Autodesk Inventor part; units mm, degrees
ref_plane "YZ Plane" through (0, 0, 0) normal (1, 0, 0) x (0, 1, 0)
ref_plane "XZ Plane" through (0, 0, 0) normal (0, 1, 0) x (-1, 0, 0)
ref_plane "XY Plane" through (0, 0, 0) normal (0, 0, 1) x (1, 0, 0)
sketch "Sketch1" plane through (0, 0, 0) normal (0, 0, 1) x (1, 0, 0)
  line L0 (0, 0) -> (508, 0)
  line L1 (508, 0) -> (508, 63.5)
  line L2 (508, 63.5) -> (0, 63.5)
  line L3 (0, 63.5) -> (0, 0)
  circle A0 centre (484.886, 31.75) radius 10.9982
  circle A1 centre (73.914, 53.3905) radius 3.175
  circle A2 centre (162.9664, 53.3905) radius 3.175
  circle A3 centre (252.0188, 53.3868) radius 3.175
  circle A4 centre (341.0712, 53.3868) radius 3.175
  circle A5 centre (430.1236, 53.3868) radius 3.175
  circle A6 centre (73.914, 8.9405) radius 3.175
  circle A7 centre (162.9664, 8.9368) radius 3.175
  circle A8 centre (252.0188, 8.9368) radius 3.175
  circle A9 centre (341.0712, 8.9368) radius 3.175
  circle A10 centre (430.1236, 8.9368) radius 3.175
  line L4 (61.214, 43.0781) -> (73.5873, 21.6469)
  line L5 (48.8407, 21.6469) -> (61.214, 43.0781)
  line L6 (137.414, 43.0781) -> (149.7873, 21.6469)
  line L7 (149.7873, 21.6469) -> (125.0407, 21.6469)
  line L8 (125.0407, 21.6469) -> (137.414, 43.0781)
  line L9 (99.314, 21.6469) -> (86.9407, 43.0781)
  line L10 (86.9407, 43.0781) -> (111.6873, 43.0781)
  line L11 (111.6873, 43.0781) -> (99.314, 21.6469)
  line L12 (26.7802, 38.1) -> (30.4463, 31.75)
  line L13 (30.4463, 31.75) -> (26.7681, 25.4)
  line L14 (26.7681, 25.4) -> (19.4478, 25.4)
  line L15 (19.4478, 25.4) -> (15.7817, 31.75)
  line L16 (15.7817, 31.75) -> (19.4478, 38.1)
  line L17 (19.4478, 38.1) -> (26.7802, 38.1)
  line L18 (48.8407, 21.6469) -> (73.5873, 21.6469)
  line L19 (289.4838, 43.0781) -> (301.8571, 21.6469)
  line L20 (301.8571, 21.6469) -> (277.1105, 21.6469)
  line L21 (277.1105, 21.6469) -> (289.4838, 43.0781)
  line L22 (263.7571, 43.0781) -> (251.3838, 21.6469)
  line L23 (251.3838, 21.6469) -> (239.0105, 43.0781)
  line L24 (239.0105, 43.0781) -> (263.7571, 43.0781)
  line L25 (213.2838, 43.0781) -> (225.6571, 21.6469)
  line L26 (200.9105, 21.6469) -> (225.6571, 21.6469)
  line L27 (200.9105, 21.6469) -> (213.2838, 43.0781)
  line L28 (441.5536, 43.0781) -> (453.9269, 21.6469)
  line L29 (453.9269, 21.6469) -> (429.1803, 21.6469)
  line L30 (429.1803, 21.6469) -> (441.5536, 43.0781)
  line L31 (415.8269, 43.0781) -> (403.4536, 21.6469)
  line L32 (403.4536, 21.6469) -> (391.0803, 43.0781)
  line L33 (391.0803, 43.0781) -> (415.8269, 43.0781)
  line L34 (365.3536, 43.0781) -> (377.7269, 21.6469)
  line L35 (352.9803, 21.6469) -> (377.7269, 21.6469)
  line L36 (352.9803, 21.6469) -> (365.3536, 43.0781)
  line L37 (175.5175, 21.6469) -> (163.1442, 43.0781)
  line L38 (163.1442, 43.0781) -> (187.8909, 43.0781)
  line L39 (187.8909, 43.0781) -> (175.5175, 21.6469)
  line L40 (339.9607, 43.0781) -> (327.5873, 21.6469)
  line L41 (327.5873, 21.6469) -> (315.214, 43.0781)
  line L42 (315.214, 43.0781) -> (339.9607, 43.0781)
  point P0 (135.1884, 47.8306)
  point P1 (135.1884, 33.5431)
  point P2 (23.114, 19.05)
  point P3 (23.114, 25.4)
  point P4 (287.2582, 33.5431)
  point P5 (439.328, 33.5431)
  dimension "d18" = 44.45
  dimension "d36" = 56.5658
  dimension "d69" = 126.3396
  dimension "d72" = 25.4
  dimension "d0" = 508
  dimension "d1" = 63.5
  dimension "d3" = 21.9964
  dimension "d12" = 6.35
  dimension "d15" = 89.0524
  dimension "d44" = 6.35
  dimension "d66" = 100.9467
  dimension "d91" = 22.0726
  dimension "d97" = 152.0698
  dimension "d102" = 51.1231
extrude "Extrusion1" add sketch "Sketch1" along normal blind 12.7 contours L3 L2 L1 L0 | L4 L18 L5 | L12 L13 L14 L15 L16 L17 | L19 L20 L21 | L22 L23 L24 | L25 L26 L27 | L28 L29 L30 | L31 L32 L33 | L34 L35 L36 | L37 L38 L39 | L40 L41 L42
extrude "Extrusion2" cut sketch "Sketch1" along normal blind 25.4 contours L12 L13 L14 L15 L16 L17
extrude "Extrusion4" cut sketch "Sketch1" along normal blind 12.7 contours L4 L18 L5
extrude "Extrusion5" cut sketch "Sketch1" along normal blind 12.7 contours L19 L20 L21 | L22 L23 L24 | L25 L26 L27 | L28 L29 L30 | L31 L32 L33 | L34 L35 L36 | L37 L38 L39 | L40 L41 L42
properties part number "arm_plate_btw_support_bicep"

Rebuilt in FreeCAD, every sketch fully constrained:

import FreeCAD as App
import Part
import Sketcher
from FreeCAD import Vector
Q = App.Units.Quantity

doc = App.newDocument("Part")
params = doc.addObject("Spreadsheet::Sheet", "Params")
for row, (alias, value) in enumerate([
    ("sketch1_diameter", "0.25 in"),
    ("sketch1_width", "20 in"),
    ("sketch1_diameter2", "0.866 in"),
    ("sketch1_height", "2.5 in"),
    ("pad1_length", "0.5 in"),
    ("pocket1_length", "1 in"),
    ("pocket2_length", "0.5 in"),
    ("pocket3_length", "0.5 in"),
], start=1):
    params.set(f"A{row}", alias)
    params.set(f"B{row}", "=" + value)
    params.setAlias(f"B{row}", alias)

body = doc.addObject("PartDesign::Body", "Body")

# Sketch on XY plane
sketch1 = doc.addObject("Sketcher::SketchObject", "Sketch")
body.addObject(sketch1)
sketch1.AttachmentSupport = (doc.XY_Plane, [""])
sketch1.MapMode = "FlatFace"
sketch1.addGeometry([
    Part.LineSegment(Vector(0, 63.5, 0), Vector(0, 0, 0)),  # 0
    Part.LineSegment(Vector(0, 0, 0), Vector(508, 0, 0)),  # 1
    Part.LineSegment(Vector(508, 0, 0), Vector(508, 63.5, 0)),  # 2
    Part.LineSegment(Vector(508, 63.5, 0), Vector(0, 63.5, 0)),  # 3
    Part.Circle(Vector(73.9, 8.9, 0), Vector(0, 0, 1), 3.2),  # 4
    Part.Circle(Vector(163, 8.9, 0), Vector(0, 0, 1), 3.2),  # 5
    Part.Circle(Vector(252, 8.9, 0), Vector(0, 0, 1), 3.2),  # 6
    Part.Circle(Vector(341.1, 8.9, 0), Vector(0, 0, 1), 3.2),  # 7
    Part.Circle(Vector(430.1, 8.9, 0), Vector(0, 0, 1), 3.2),  # 8
    Part.LineSegment(Vector(111.7, 43.1, 0), Vector(99.3, 21.6, 0)),  # 9
    Part.LineSegment(Vector(99.3, 21.6, 0), Vector(86.9, 43.1, 0)),  # 10
    Part.LineSegment(Vector(86.9, 43.1, 0), Vector(111.7, 43.1, 0)),  # 11
    Part.LineSegment(Vector(125, 21.6, 0), Vector(137.4, 43.1, 0)),  # 12
    Part.LineSegment(Vector(137.4, 43.1, 0), Vector(149.8, 21.6, 0)),  # 13
    Part.LineSegment(Vector(149.8, 21.6, 0), Vector(125, 21.6, 0)),  # 14
    Part.Circle(Vector(73.9, 53.4, 0), Vector(0, 0, 1), 3.2),  # 15
    Part.Circle(Vector(163, 53.4, 0), Vector(0, 0, 1), 3.2),  # 16
    Part.Circle(Vector(252, 53.4, 0), Vector(0, 0, 1), 3.2),  # 17
    Part.Circle(Vector(484.9, 31.8, 0), Vector(0, 0, 1), 11),  # 18
    Part.Circle(Vector(341.1, 53.4, 0), Vector(0, 0, 1), 3.2),  # 19
    Part.Circle(Vector(430.1, 53.4, 0), Vector(0, 0, 1), 3.2),  # 20
], False)
sketch1.addConstraint([
    Sketcher.Constraint("Coincident", 0, 2, 1, 1),
    Sketcher.Constraint("Coincident", 1, 2, 2, 1),
    Sketcher.Constraint("Coincident", 2, 2, 3, 1),
    Sketcher.Constraint("Coincident", 3, 2, 0, 1),
    Sketcher.Constraint("Coincident", 9, 2, 10, 1),
    Sketcher.Constraint("Coincident", 10, 2, 11, 1),
    Sketcher.Constraint("Coincident", 11, 2, 9, 1),
    Sketcher.Constraint("Coincident", 12, 2, 13, 1),
    Sketcher.Constraint("Coincident", 13, 2, 14, 1),
    Sketcher.Constraint("Coincident", 14, 2, 12, 1),
    Sketcher.Constraint("Vertical", 0),
    Sketcher.Constraint("Horizontal", 1),
    Sketcher.Constraint("Vertical", 2),
    Sketcher.Constraint("Horizontal", 3),
    Sketcher.Constraint("Horizontal", 11),
    Sketcher.Constraint("Horizontal", 14),
    Sketcher.Constraint("Coincident", 0, 2, -1, 1),
    Sketcher.Constraint("Equal", 4, 5),
    Sketcher.Constraint("Equal", 5, 6),
    Sketcher.Constraint("Equal", 6, 7),
    Sketcher.Constraint("Equal", 7, 8),
    Sketcher.Constraint("Equal", 8, 15),
    Sketcher.Constraint("Equal", 15, 16),
    Sketcher.Constraint("Equal", 16, 17),
    Sketcher.Constraint("Equal", 17, 19),
    Sketcher.Constraint("Equal", 19, 20),
    Sketcher.Constraint("Parallel", 9, 12),
    Sketcher.Constraint("Parallel", 10, 13),
    Sketcher.Constraint("Horizontal", 5, 3, 6, 3),
    Sketcher.Constraint("Horizontal", 6, 3, 7, 3),
    Sketcher.Constraint("Horizontal", 7, 3, 8, 3),
    Sketcher.Constraint("Horizontal", 15, 3, 16, 3),
    Sketcher.Constraint("Horizontal", 17, 3, 19, 3),
    Sketcher.Constraint("Horizontal", 19, 3, 20, 3),
    Sketcher.Constraint("Horizontal", 11, 2, 12, 2),
    Sketcher.Constraint("Horizontal", 9, 2, 13, 2),
    Sketcher.Constraint("Vertical", 4, 3, 15, 3),
    Sketcher.Constraint("Vertical", 5, 3, 16, 3),
    Sketcher.Constraint("Vertical", 6, 3, 17, 3),
    Sketcher.Constraint("Vertical", 7, 3, 19, 3),
    Sketcher.Constraint("Vertical", 8, 3, 20, 3),
    Sketcher.Constraint("Equal", 9, 10),
    Sketcher.Constraint("Diameter", 4, Q("0.25 in")),
    Sketcher.Constraint("DistanceX", 1, 1, 1, 2, Q("20 in")),
    Sketcher.Constraint("Diameter", 18, Q("0.866 in")),
    Sketcher.Constraint("DistanceY", 0, 2, 0, 1, Q("2.5 in")),
    Sketcher.Constraint("DistanceX", 4, 3, 9, 2, Q("1 in")),
    Sketcher.Constraint("DistanceY", 4, 3, 15, 3, Q("1.75 in")),
    Sketcher.Constraint("DistanceY", 6, 3, 17, 3, Q("1.75 in")),
    Sketcher.Constraint("Angle", 9, Q("-120 deg")),
    Sketcher.Constraint("DistanceX", 4, 3, 5, 3, Q("3.506 in")),
    Sketcher.Constraint("DistanceX", 5, 3, 6, 3, Q("3.506 in")),
    Sketcher.Constraint("DistanceX", 6, 3, 7, 3, Q("3.506 in")),
    Sketcher.Constraint("DistanceX", 7, 3, 8, 3, Q("3.506 in")),
    Sketcher.Constraint("DistanceX", 9, 2, 12, 2, Q("1.5 in")),
    Sketcher.Constraint("DistanceX", -1, 1, 4, 3, Q("2.91 in")),
    Sketcher.Constraint("DistanceX", -1, 1, 18, 3, Q("19.09 in")),
    Sketcher.Constraint("DistanceY", -1, 1, 18, 3, Q("1.25 in")),
    Sketcher.Constraint("DistanceY", -1, 1, 4, 3, Q("0.352 in")),
    Sketcher.Constraint("DistanceY", -1, 1, 10, 2, Q("1.696 in")),
    Sketcher.Constraint("DistanceY", 9, 2, 10, 2, Q("0.843748 in")),
    Sketcher.Constraint("DistanceY", 5, 3, 9, 2, Q("0.5004 in")),
])
sketch1.setExpression("Constraints[42]", "Params.sketch1_diameter")
sketch1.setExpression("Constraints[43]", "Params.sketch1_width")
sketch1.setExpression("Constraints[44]", "Params.sketch1_diameter2")
sketch1.setExpression("Constraints[45]", "Params.sketch1_height")
pad1 = doc.addObject("PartDesign::Pad", "Pad")
body.addObject(pad1)
pad1.Profile = sketch1
pad1.setExpression("Length", "Params.pad1_length")

# Sketch on XY plane
sketch2 = doc.addObject("Sketcher::SketchObject", "Sketch001")
body.addObject(sketch2)
sketch2.AttachmentSupport = (doc.XY_Plane, [""])
sketch2.MapMode = "FlatFace"
sketch2.addGeometry([
    Part.LineSegment(Vector(30, 32, 0), Vector(27, 38, 0)),  # 0
    Part.LineSegment(Vector(27, 38, 0), Vector(19, 38, 0)),  # 1
    Part.LineSegment(Vector(19, 38, 0), Vector(16, 32, 0)),  # 2
    Part.LineSegment(Vector(16, 32, 0), Vector(19, 25, 0)),  # 3
    Part.LineSegment(Vector(19, 25, 0), Vector(27, 25, 0)),  # 4
    Part.LineSegment(Vector(27, 25, 0), Vector(30, 32, 0)),  # 5
], False)
sketch2.addConstraint([
    Sketcher.Constraint("Coincident", 0, 2, 1, 1),
    Sketcher.Constraint("Coincident", 1, 2, 2, 1),
    Sketcher.Constraint("Coincident", 2, 2, 3, 1),
    Sketcher.Constraint("Coincident", 3, 2, 4, 1),
    Sketcher.Constraint("Coincident", 4, 2, 5, 1),
    Sketcher.Constraint("Coincident", 5, 2, 0, 1),
    Sketcher.Constraint("Horizontal", 1),
    Sketcher.Constraint("Horizontal", 4),
    Sketcher.Constraint("Parallel", 0, 3),
    Sketcher.Constraint("Horizontal", 2, 2, 5, 2),
    Sketcher.Constraint("Vertical", 1, 2, 3, 2),
    Sketcher.Constraint("Equal", 0, 2),
    Sketcher.Constraint("DistanceY", -1, 1, 3, 2, Q("1 in")),
    Sketcher.Constraint("DistanceY", 2, 2, 1, 2, Q("0.25 in")),
    Sketcher.Constraint("Angle", 0, Q("119.9995 deg")),
    Sketcher.Constraint("DistanceX", 4, 1, 4, 2, Q("0.2882 in")),
    Sketcher.Constraint("DistanceX", 2, 2, 0, 2, Q("0.433 in")),
    Sketcher.Constraint("DistanceX", -1, 1, 0, 2, Q("26.7802 mm")),
])
pocket1 = doc.addObject("PartDesign::Pocket", "Pocket")
body.addObject(pocket1)
pocket1.Profile = sketch2
pocket1.setExpression("Length", "Params.pocket1_length")
pocket1.Reversed = True

# Sketch on XY plane
sketch3 = doc.addObject("Sketcher::SketchObject", "Sketch002")
body.addObject(sketch3)
sketch3.AttachmentSupport = (doc.XY_Plane, [""])
sketch3.MapMode = "FlatFace"
sketch3.addGeometry([
    Part.LineSegment(Vector(74, 22, 0), Vector(61, 43, 0)),
    Part.LineSegment(Vector(61, 43, 0), Vector(49, 22, 0)),
    Part.LineSegment(Vector(49, 22, 0), Vector(74, 22, 0)),
], False)
sketch3.addConstraint([
    Sketcher.Constraint("Coincident", 0, 2, 1, 1),
    Sketcher.Constraint("Coincident", 1, 2, 2, 1),
    Sketcher.Constraint("Coincident", 2, 2, 0, 1),
    Sketcher.Constraint("Horizontal", 2),
    Sketcher.Constraint("Equal", 0, 1),
    Sketcher.Constraint("Angle", 0, Q("120 deg")),
    Sketcher.Constraint("DistanceX", -1, 1, 0, 2, Q("2.41 in")),
    Sketcher.Constraint("DistanceY", -1, 1, 0, 2, Q("1.696 in")),
    Sketcher.Constraint("DistanceY", 1, 2, 0, 2, Q("0.843748 in")),
])
pocket2 = doc.addObject("PartDesign::Pocket", "Pocket001")
body.addObject(pocket2)
pocket2.Profile = sketch3
pocket2.setExpression("Length", "Params.pocket2_length")
pocket2.Reversed = True

# Sketch on XY plane
sketch4 = doc.addObject("Sketcher::SketchObject", "Sketch003")
body.addObject(sketch4)
sketch4.AttachmentSupport = (doc.XY_Plane, [""])
sketch4.MapMode = "FlatFace"
sketch4.addGeometry([
    Part.LineSegment(Vector(302, 22, 0), Vector(289, 43, 0)),  # 0
    Part.LineSegment(Vector(289, 43, 0), Vector(277, 22, 0)),  # 1
    Part.LineSegment(Vector(277, 22, 0), Vector(302, 22, 0)),  # 2
    Part.LineSegment(Vector(251, 22, 0), Vector(264, 43, 0)),  # 3
    Part.LineSegment(Vector(264, 43, 0), Vector(239, 43, 0)),  # 4
    Part.LineSegment(Vector(239, 43, 0), Vector(251, 22, 0)),  # 5
    Part.LineSegment(Vector(226, 22, 0), Vector(213, 43, 0)),  # 6
    Part.LineSegment(Vector(213, 43, 0), Vector(201, 22, 0)),  # 7
    Part.LineSegment(Vector(201, 22, 0), Vector(226, 22, 0)),  # 8
    Part.LineSegment(Vector(454, 22, 0), Vector(442, 43, 0)),  # 9
    Part.LineSegment(Vector(442, 43, 0), Vector(429, 22, 0)),  # 10
    Part.LineSegment(Vector(429, 22, 0), Vector(454, 22, 0)),  # 11
    Part.LineSegment(Vector(403, 22, 0), Vector(416, 43, 0)),  # 12
    Part.LineSegment(Vector(416, 43, 0), Vector(391, 43, 0)),  # 13
    Part.LineSegment(Vector(391, 43, 0), Vector(403, 22, 0)),  # 14
    Part.LineSegment(Vector(378, 22, 0), Vector(365, 43, 0)),  # 15
    Part.LineSegment(Vector(365, 43, 0), Vector(353, 22, 0)),  # 16
    Part.LineSegment(Vector(353, 22, 0), Vector(378, 22, 0)),  # 17
    Part.LineSegment(Vector(163, 43, 0), Vector(176, 22, 0)),  # 18
    Part.LineSegment(Vector(176, 22, 0), Vector(188, 43, 0)),  # 19
    Part.LineSegment(Vector(188, 43, 0), Vector(163, 43, 0)),  # 20
    Part.LineSegment(Vector(328, 22, 0), Vector(340, 43, 0)),  # 21
    Part.LineSegment(Vector(340, 43, 0), Vector(315, 43, 0)),  # 22
    Part.LineSegment(Vector(315, 43, 0), Vector(328, 22, 0)),  # 23
], False)
sketch4.addConstraint([
    Sketcher.Constraint("Coincident", 0, 2, 1, 1),
    Sketcher.Constraint("Coincident", 1, 2, 2, 1),
    Sketcher.Constraint("Coincident", 2, 2, 0, 1),
    Sketcher.Constraint("Coincident", 3, 2, 4, 1),
    Sketcher.Constraint("Coincident", 4, 2, 5, 1),
    Sketcher.Constraint("Coincident", 5, 2, 3, 1),
    Sketcher.Constraint("Coincident", 6, 2, 7, 1),
    Sketcher.Constraint("Coincident", 7, 2, 8, 1),
    Sketcher.Constraint("Coincident", 8, 2, 6, 1),
    Sketcher.Constraint("Coincident", 9, 2, 10, 1),
    Sketcher.Constraint("Coincident", 10, 2, 11, 1),
    Sketcher.Constraint("Coincident", 11, 2, 9, 1),
    Sketcher.Constraint("Coincident", 12, 2, 13, 1),
    Sketcher.Constraint("Coincident", 13, 2, 14, 1),
    Sketcher.Constraint("Coincident", 14, 2, 12, 1),
    Sketcher.Constraint("Coincident", 15, 2, 16, 1),
    Sketcher.Constraint("Coincident", 16, 2, 17, 1),
    Sketcher.Constraint("Coincident", 17, 2, 15, 1),
    Sketcher.Constraint("Coincident", 18, 2, 19, 1),
    Sketcher.Constraint("Coincident", 19, 2, 20, 1),
    Sketcher.Constraint("Coincident", 20, 2, 18, 1),
    Sketcher.Constraint("Coincident", 21, 2, 22, 1),
    Sketcher.Constraint("Coincident", 22, 2, 23, 1),
    Sketcher.Constraint("Coincident", 23, 2, 21, 1),
    Sketcher.Constraint("Horizontal", 2),
    Sketcher.Constraint("Horizontal", 4),
    Sketcher.Constraint("Horizontal", 8),
    Sketcher.Constraint("Horizontal", 11),
    Sketcher.Constraint("Horizontal", 13),
    Sketcher.Constraint("Horizontal", 17),
    Sketcher.Constraint("Horizontal", 20),
    Sketcher.Constraint("Horizontal", 22),
    Sketcher.Constraint("Parallel", 1, 3),
    Sketcher.Constraint("Parallel", 0, 5),
    Sketcher.Constraint("Parallel", 5, 6),
    Sketcher.Constraint("Parallel", 3, 7),
    Sketcher.Constraint("Parallel", 6, 9),
    Sketcher.Constraint("Parallel", 7, 10),
    Sketcher.Constraint("Parallel", 10, 12),
    Sketcher.Constraint("Parallel", 9, 14),
    Sketcher.Constraint("Parallel", 14, 15),
    Sketcher.Constraint("Parallel", 12, 16),
    Sketcher.Constraint("Parallel", 15, 18),
    Sketcher.Constraint("Parallel", 16, 19),
    Sketcher.Constraint("Parallel", 19, 21),
    Sketcher.Constraint("Parallel", 18, 23),
    Sketcher.Constraint("Horizontal", 0, 2, 3, 2),
    Sketcher.Constraint("Horizontal", 2, 2, 5, 2),
    Sketcher.Constraint("Horizontal", 4, 2, 6, 2),
    Sketcher.Constraint("Horizontal", 5, 2, 7, 2),
    Sketcher.Constraint("Horizontal", 6, 2, 9, 2),
    Sketcher.Constraint("Horizontal", 8, 2, 10, 2),
    Sketcher.Constraint("Horizontal", 9, 2, 12, 2),
    Sketcher.Constraint("Horizontal", 11, 2, 14, 2),
    Sketcher.Constraint("Horizontal", 13, 2, 15, 2),
    Sketcher.Constraint("Horizontal", 14, 2, 16, 2),
    Sketcher.Constraint("Horizontal", 17, 2, 18, 2),
    Sketcher.Constraint("Horizontal", 15, 2, 19, 2),
    Sketcher.Constraint("Horizontal", 20, 2, 21, 2),
    Sketcher.Constraint("Horizontal", 18, 2, 23, 2),
    Sketcher.Constraint("Equal", 0, 1),
    Sketcher.Constraint("Angle", 0, Q("120 deg")),
    Sketcher.Constraint("DistanceX", 6, 2, 0, 2, Q("3 in")),
    Sketcher.Constraint("DistanceX", 0, 2, 9, 2, Q("5.987 in")),
    Sketcher.Constraint("DistanceX", 3, 2, 2, 2, Q("1.5 in")),
    Sketcher.Constraint("DistanceX", 12, 2, 11, 2, Q("1.5 in")),
    Sketcher.Constraint("DistanceX", 15, 2, 14, 2, Q("1.5 in")),
    Sketcher.Constraint("DistanceX", -1, 1, 22, 2, Q("12.41 in")),
    Sketcher.Constraint("DistanceX", 2, 2, 16, 2, Q("51.1232 mm")),
    Sketcher.Constraint("DistanceX", -1, 1, 0, 2, Q("11.397 in")),
    Sketcher.Constraint("DistanceY", -1, 1, 0, 2, Q("1.696 in")),
    Sketcher.Constraint("DistanceX", -1, 1, 20, 2, Q("6.423 in")),
])
pocket3 = doc.addObject("PartDesign::Pocket", "Pocket002")
body.addObject(pocket3)
pocket3.Profile = sketch4
pocket3.setExpression("Length", "Params.pocket3_length")
pocket3.Reversed = True

doc.recompute()
